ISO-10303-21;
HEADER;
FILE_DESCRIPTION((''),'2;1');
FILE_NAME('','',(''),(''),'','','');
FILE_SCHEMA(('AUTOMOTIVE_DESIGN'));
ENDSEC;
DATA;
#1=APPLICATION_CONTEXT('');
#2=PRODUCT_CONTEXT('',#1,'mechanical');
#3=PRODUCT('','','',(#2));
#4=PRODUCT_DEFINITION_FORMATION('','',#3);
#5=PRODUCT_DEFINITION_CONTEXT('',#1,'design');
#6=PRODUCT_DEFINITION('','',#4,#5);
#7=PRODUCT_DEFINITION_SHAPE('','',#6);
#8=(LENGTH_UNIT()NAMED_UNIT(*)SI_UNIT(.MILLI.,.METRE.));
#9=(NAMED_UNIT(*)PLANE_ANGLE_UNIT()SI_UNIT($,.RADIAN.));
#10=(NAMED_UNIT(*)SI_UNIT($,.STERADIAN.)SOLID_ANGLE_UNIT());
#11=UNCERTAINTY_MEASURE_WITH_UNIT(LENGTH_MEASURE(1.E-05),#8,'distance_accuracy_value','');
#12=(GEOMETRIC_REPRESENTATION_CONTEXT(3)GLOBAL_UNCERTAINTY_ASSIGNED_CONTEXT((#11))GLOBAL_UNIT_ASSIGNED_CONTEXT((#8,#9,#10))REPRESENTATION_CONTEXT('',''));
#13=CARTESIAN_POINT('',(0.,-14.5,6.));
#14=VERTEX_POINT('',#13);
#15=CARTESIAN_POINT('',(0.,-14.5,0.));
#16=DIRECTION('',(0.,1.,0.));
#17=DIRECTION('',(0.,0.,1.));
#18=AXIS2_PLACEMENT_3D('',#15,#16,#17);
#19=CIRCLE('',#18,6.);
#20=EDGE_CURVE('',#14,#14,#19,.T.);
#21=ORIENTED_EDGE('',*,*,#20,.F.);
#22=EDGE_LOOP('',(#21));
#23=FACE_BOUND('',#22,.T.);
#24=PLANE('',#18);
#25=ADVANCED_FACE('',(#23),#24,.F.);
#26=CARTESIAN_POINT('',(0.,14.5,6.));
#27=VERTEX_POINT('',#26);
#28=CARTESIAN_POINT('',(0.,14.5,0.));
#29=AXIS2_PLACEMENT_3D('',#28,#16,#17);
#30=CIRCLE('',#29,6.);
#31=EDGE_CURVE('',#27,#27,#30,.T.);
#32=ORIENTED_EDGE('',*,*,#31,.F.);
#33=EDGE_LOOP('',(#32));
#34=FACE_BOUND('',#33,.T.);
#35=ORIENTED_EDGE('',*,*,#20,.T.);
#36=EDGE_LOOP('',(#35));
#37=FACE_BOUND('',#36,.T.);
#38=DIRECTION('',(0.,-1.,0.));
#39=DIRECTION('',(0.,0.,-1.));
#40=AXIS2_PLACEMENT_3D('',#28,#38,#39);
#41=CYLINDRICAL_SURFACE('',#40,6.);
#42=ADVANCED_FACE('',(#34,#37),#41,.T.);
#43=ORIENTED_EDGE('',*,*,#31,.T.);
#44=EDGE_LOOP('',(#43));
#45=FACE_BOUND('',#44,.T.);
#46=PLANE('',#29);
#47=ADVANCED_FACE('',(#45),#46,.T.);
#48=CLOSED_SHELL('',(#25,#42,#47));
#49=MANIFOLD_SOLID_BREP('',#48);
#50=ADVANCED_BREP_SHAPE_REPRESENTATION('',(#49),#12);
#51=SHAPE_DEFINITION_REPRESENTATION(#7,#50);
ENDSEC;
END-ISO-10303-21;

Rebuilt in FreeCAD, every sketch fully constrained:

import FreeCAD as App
import Part
import Sketcher
Q = App.Units.Quantity

doc = App.newDocument("Part")
body = doc.addObject("PartDesign::Body", "Body")

sketch1 = body.newObject("Sketcher::SketchObject", "Sketch")
sketch1.AttachmentSupport = (doc.getObject("XZ_Plane"), [""])
sketch1.MapMode = "FlatFace"
sketch1.addGeometry(Part.Circle(App.Vector(0, 0, 0), App.Vector(0, 0, 1), 6), False)
sketch1.addConstraint(Sketcher.Constraint("Coincident", 0, 3, -1, 1))
sketch1.addConstraint(Sketcher.Constraint("Diameter", 0, Q("12 mm")))
pad1 = body.newObject("PartDesign::Pad", "Pad")
pad1.Profile = sketch1
pad1.Length = 29
pad1.Midplane = True

doc.recompute()
